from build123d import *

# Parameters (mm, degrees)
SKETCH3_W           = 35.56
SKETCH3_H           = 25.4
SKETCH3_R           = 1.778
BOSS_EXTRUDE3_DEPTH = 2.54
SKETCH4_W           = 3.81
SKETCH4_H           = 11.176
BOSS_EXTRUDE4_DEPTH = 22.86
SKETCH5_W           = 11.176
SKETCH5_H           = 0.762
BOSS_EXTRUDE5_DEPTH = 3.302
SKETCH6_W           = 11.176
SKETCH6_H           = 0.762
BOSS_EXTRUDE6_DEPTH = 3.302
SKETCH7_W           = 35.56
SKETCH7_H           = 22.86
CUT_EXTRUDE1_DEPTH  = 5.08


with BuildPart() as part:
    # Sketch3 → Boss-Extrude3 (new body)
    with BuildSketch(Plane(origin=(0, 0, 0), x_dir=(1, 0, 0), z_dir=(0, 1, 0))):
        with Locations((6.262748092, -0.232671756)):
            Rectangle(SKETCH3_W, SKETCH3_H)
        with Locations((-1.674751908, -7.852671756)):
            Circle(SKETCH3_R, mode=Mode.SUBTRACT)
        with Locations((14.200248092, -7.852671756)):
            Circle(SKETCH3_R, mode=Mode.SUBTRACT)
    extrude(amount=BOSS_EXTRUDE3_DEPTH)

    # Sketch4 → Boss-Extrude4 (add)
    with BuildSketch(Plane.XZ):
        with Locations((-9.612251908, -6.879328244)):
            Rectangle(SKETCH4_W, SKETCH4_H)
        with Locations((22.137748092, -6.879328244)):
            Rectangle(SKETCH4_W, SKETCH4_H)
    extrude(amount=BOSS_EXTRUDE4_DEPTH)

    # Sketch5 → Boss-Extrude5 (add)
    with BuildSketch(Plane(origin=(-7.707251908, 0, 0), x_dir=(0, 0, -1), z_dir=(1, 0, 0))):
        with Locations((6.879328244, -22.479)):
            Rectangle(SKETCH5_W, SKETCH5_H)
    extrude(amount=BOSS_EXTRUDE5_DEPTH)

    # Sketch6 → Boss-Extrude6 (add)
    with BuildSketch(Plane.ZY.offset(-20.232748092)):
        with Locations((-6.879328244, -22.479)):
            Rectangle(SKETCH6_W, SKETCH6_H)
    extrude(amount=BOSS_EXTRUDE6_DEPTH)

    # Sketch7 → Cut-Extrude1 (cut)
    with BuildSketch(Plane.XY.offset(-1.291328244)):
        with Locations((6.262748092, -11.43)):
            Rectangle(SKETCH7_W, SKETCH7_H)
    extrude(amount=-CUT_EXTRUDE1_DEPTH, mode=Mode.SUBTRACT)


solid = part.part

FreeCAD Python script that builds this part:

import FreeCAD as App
import Part
import Sketcher

V = App.Vector
Q = App.Units.Quantity


def add_polygon(sketch, points):
    """Adds a closed chain of lines whose ends are joined by coincident constraints."""
    first, n = sketch.GeometryCount, len(points)
    for a, b in zip(points, points[1:] + points[:1]):
        sketch.addGeometry(Part.LineSegment(App.Vector(*a, 0), App.Vector(*b, 0)), False)
    for i in range(n):
        sketch.addConstraint(Sketcher.Constraint("Coincident", first + i, 2, first + (i + 1) % n, 1))

doc = App.newDocument("Part")
params = doc.addObject("Spreadsheet::Sheet", "Params")
for row, (alias, value) in enumerate([
    ("sketch1_diameter", "0.14 in"),
    ("sketch1_height", "1 in"),
    ("sketch1_width", "1.4 in"),
    ("pad1_length", "0.1 in"),
    ("sketch2_width", "0.15 in"),
    ("sketch2_height", "0.44 in"),
    ("pad2_length", "0.9 in"),
    ("sketch3_width", "0.03 in"),
    ("sketch3_height", "0.44 in"),
    ("pad3_length", "0.13 in"),
    ("sketch4_width", "0.03 in"),
    ("sketch4_height", "0.44 in"),
    ("pad4_length", "0.13 in"),
    ("sketch5_width", "1.4 in"),
    ("sketch5_height", "0.9 in"),
    ("pocket1_length", "0.2 in"),
], start=1):
    params.set(f"A{row}", alias)
    params.set(f"B{row}", "=" + value)
    params.setAlias(f"B{row}", alias)

body = doc.addObject("PartDesign::Body", "Body")

# Sketch on XZ plane
sketch1 = body.newObject("Sketcher::SketchObject", "Sketch")
sketch1.AttachmentSupport = (doc.getObject("XZ_Plane"), [""])
sketch1.MapMode = "FlatFace"
add_polygon(sketch1, [(-11.517252, -12.467328), (-11.517252, 12.932672), (24.042748, 12.932672), (24.042748, -12.467328)])  # lines 0-3
sketch1.addGeometry(Part.Circle(V(14.200248, 7.852672, 0), V(0, 0, 1), 1.778), False)  # 4
sketch1.addGeometry(Part.Circle(V(-1.674752, 7.852672, 0), V(0, 0, 1), 1.778), False)  # 5
sketch1.addConstraint([
    Sketcher.Constraint("Vertical", 0),
    Sketcher.Constraint("Horizontal", 1),
    Sketcher.Constraint("Vertical", 2),
    Sketcher.Constraint("Horizontal", 3),
    Sketcher.Constraint("Equal", 4, 5),
    Sketcher.Constraint("Horizontal", 4, 3, 5, 3),
    Sketcher.Constraint("Diameter", 4, Q("0.14 in")),
    Sketcher.Constraint("DistanceY", 0, 1, 0, 2, Q("1 in")),
    Sketcher.Constraint("DistanceX", 1, 1, 1, 2, Q("1.4 in")),
    Sketcher.Constraint("DistanceY", 5, 3, 0, 2, Q("0.2 in")),
    Sketcher.Constraint("DistanceX", 5, 3, 4, 3, Q("0.625 in")),
    Sketcher.Constraint("DistanceX", 0, 2, 5, 3, Q("0.3875 in")),
    Sketcher.Constraint("DistanceX", -1, 1, 4, 3, 14.200248),
    Sketcher.Constraint("DistanceY", -1, 1, 4, 3, 7.852672),
])
sketch1.setExpression("Constraints[10]", "Params.sketch1_diameter")
sketch1.setExpression("Constraints[11]", "Params.sketch1_height")
sketch1.setExpression("Constraints[12]", "Params.sketch1_width")
pad1 = body.newObject("PartDesign::Pad", "Pad")
pad1.Profile = sketch1
pad1.setExpression("Length", "Params.pad1_length")
pad1.Reversed = True

# Sketch on XZ plane
sketch2 = body.newObject("Sketcher::SketchObject", "Sketch001")
sketch2.AttachmentSupport = (doc.getObject("XZ_Plane"), [""])
sketch2.MapMode = "FlatFace"
add_polygon(sketch2, [(-11.517252, -1.291328), (-11.517252, -12.467328), (-7.707252, -12.467328), (-7.707252, -1.291328)])  # lines 0-3
add_polygon(sketch2, [(20.232748, -1.291328), (20.232748, -12.467328), (24.042748, -12.467328), (24.042748, -1.291328)])  # lines 4-7
sketch2.addConstraint([
    Sketcher.Constraint("Vertical", 0),
    Sketcher.Constraint("Horizontal", 1),
    Sketcher.Constraint("Vertical", 2),
    Sketcher.Constraint("Horizontal", 3),
    Sketcher.Constraint("Vertical", 4),
    Sketcher.Constraint("Horizontal", 5),
    Sketcher.Constraint("Vertical", 6),
    Sketcher.Constraint("Horizontal", 7),
    Sketcher.Constraint("Horizontal", 1, 2, 4, 2),
    Sketcher.Constraint("Horizontal", 3, 2, 6, 2),
    Sketcher.Constraint("Equal", 3, 5),
    Sketcher.Constraint("DistanceX", 1, 1, 1, 2, Q("0.15 in")),
    Sketcher.Constraint("DistanceY", 0, 2, 0, 1, Q("0.44 in")),
    Sketcher.Constraint("DistanceX", 1, 2, 4, 2, Q("1.1 in")),
    Sketcher.Constraint("DistanceX", 0, 2, -1, 1, 11.517252),
    Sketcher.Constraint("DistanceY", 0, 2, -1, 1, 12.467328),
])
sketch2.setExpression("Constraints[19]", "Params.sketch2_width")
sketch2.setExpression("Constraints[20]", "Params.sketch2_height")
pad2 = body.newObject("PartDesign::Pad", "Pad001")
pad2.Profile = sketch2
pad2.setExpression("Length", "Params.pad2_length")

# Sketch on YZ plane
sketch3 = body.newObject("Sketcher::SketchObject", "Sketch002")
sketch3.AttachmentSupport = (doc.getObject("YZ_Plane"), [""])
sketch3.MapMode = "FlatFace"
sketch3.AttachmentOffset = App.Placement(V(0, 0, -7.707252), App.Rotation())
add_polygon(sketch3, [(-22.098, -1.291328), (-22.86, -1.291328), (-22.86, -12.467328), (-22.098, -12.467328)])  # lines 0-3
sketch3.addConstraint([
    Sketcher.Constraint("Horizontal", 0),
    Sketcher.Constraint("Vertical", 1),
    Sketcher.Constraint("Horizontal", 2),
    Sketcher.Constraint("Vertical", 3),
    Sketcher.Constraint("DistanceX", 0, 2, 0, 1, Q("0.03 in")),
    Sketcher.Constraint("DistanceY", 1, 2, 1, 1, Q("0.44 in")),
    Sketcher.Constraint("DistanceX", 0, 2, -1, 1, Q("0.9 in")),
    Sketcher.Constraint("DistanceY", 0, 2, -1, 1, 1.291328),
])
sketch3.setExpression("Constraints[8]", "Params.sketch3_width")
sketch3.setExpression("Constraints[9]", "Params.sketch3_height")
pad3 = body.newObject("PartDesign::Pad", "Pad002")
pad3.Profile = sketch3
pad3.setExpression("Length", "Params.pad3_length")

# Sketch on YZ plane
sketch4 = body.newObject("Sketcher::SketchObject", "Sketch003")
sketch4.AttachmentSupport = (doc.getObject("YZ_Plane"), [""])
sketch4.MapMode = "FlatFace"
sketch4.AttachmentOffset = App.Placement(V(0, 0, 20.232748), App.Rotation())
add_polygon(sketch4, [(-22.098, -12.467328), (-22.86, -12.467328), (-22.86, -1.291328), (-22.098, -1.291328)])  # lines 0-3
sketch4.addConstraint([
    Sketcher.Constraint("Horizontal", 0),
    Sketcher.Constraint("Vertical", 1),
    Sketcher.Constraint("Horizontal", 2),
    Sketcher.Constraint("Vertical", 3),
    Sketcher.Constraint("DistanceX", 0, 2, 0, 1, Q("0.03 in")),
    Sketcher.Constraint("DistanceY", 1, 1, 1, 2, Q("0.44 in")),
    Sketcher.Constraint("DistanceX", 0, 2, -1, 1, Q("0.9 in")),
    Sketcher.Constraint("DistanceY", 0, 2, -1, 1, 12.467328),
])
sketch4.setExpression("Constraints[8]", "Params.sketch4_width")
sketch4.setExpression("Constraints[9]", "Params.sketch4_height")
pad4 = body.newObject("PartDesign::Pad", "Pad003")
pad4.Profile = sketch4
pad4.setExpression("Length", "Params.pad4_length")
pad4.Reversed = True

# Sketch on XY plane
sketch5 = body.newObject("Sketcher::SketchObject", "Sketch004")
sketch5.AttachmentSupport = (doc.getObject("XY_Plane"), [""])
sketch5.MapMode = "FlatFace"
sketch5.AttachmentOffset = App.Placement(V(0, 0, -1.291328), App.Rotation())
add_polygon(sketch5, [(-11.517252, 0), (-11.517252, -22.86), (24.042748, -22.86), (24.042748, 0)])  # lines 0-3
sketch5.addConstraint([
    Sketcher.Constraint("Vertical", 0),
    Sketcher.Constraint("Horizontal", 1),
    Sketcher.Constraint("Vertical", 2),
    Sketcher.Constraint("Horizontal", 3),
    Sketcher.Constraint("PointOnObject", 2, 2, -1),
    Sketcher.Constraint("DistanceX", 1, 1, 1, 2, Q("1.4 in")),
    Sketcher.Constraint("DistanceY", 0, 2, 0, 1, Q("0.9 in")),
    Sketcher.Constraint("DistanceX", 0, 2, -1, 1, 11.517252),
])
sketch5.setExpression("Constraints[9]", "Params.sketch5_width")
sketch5.setExpression("Constraints[10]", "Params.sketch5_height")
pocket1 = body.newObject("PartDesign::Pocket", "Pocket")
pocket1.Profile = sketch5
pocket1.setExpression("Length", "Params.pocket1_length")

doc.recompute()
